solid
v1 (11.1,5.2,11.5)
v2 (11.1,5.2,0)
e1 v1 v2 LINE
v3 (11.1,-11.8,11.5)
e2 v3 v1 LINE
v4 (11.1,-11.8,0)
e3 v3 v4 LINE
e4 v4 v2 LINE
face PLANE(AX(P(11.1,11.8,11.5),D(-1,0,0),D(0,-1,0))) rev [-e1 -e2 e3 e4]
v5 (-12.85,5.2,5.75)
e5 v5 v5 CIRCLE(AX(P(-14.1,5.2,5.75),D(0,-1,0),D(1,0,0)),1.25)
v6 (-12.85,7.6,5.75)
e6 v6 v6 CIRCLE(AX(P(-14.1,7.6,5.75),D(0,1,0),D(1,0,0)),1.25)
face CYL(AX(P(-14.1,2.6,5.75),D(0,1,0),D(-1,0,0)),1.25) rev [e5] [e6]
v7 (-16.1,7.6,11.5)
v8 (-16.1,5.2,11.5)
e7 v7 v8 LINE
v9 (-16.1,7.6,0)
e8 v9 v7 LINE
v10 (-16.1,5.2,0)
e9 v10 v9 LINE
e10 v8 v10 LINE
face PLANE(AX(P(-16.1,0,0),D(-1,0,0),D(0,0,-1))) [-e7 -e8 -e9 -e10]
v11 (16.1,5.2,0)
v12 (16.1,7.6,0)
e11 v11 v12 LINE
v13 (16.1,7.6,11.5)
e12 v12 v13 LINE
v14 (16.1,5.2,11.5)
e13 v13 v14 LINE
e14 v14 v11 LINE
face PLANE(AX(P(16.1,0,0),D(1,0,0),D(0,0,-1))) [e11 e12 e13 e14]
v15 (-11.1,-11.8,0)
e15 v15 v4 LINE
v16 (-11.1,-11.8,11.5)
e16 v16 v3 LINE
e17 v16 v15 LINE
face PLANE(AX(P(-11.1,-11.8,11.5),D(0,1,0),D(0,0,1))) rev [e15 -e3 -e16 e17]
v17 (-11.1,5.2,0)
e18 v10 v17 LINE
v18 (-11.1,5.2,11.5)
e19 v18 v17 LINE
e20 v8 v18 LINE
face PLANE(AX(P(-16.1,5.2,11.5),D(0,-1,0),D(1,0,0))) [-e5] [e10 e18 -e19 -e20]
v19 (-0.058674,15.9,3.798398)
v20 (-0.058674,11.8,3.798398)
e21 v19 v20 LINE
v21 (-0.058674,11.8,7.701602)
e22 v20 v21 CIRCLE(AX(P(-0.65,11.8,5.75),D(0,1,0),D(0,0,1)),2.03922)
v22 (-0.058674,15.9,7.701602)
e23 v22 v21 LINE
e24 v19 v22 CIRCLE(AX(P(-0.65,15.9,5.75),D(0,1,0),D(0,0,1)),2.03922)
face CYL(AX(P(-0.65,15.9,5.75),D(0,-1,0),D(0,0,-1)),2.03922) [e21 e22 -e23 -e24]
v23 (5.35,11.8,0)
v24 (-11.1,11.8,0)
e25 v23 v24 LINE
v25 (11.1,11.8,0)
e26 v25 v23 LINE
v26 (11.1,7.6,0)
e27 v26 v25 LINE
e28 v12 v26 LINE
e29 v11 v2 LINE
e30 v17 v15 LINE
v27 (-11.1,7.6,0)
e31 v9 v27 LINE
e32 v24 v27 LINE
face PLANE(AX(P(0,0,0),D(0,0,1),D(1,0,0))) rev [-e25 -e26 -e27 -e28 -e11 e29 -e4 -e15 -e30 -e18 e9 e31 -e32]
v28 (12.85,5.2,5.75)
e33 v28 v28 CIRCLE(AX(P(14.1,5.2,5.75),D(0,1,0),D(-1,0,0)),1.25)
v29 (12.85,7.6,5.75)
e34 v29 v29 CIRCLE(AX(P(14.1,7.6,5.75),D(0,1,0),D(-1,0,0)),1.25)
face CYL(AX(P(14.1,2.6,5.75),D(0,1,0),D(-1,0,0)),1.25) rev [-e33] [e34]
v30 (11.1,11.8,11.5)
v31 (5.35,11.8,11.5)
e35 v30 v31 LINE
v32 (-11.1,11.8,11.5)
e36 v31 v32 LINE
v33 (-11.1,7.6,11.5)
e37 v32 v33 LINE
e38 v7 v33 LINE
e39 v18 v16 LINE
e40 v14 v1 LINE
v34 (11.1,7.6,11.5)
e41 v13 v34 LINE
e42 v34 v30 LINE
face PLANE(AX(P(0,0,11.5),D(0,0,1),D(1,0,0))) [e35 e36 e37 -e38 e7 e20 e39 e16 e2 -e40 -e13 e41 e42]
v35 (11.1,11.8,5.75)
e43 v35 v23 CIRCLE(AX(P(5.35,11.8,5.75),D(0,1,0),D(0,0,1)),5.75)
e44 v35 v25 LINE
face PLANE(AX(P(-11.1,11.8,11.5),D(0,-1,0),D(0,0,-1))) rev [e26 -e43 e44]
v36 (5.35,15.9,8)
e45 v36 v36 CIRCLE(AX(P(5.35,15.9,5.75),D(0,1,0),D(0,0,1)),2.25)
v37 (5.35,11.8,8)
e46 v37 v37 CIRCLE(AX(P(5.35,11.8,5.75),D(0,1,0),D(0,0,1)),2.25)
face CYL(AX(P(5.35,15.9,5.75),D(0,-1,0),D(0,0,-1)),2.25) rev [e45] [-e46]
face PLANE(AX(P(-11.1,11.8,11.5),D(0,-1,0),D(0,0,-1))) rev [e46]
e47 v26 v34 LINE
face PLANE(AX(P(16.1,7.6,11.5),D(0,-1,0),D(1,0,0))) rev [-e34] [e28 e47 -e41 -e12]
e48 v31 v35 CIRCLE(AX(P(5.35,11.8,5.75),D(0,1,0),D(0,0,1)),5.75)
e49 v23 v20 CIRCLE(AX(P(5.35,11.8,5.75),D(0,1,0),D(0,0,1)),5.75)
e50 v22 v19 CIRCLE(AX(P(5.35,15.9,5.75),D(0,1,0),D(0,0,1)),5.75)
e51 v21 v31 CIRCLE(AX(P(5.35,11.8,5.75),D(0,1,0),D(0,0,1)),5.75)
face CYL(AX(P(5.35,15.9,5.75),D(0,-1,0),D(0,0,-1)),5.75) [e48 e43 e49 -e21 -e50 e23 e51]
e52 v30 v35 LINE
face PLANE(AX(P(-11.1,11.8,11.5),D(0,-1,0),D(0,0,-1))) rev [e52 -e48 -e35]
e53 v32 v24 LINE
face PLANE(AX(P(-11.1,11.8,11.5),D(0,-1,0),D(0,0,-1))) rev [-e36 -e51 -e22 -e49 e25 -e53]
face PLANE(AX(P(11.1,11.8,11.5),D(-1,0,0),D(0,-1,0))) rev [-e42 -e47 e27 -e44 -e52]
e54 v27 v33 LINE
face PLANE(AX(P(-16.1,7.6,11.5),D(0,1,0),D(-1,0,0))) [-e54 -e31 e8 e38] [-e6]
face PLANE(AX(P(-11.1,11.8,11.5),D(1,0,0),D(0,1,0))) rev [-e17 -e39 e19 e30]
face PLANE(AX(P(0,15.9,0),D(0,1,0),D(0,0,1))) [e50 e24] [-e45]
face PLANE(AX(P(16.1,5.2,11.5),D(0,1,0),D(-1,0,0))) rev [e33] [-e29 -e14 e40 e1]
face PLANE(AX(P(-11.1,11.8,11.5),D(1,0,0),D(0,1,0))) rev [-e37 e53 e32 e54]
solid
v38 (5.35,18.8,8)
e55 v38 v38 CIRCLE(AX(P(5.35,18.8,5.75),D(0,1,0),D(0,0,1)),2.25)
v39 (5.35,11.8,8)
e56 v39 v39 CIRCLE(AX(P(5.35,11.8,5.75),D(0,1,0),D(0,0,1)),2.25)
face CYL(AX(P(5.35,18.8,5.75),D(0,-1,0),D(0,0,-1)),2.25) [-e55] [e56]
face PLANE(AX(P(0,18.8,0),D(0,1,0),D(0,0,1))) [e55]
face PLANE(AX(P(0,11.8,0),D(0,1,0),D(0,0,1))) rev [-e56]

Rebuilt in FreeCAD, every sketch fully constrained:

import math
import FreeCAD as App
import Part
import Sketcher
from FreeCAD import Vector
Q = App.Units.Quantity


def add_polygon(sketch, points):
    """Adds a closed chain of lines whose ends are joined by coincident constraints."""
    first, n = sketch.GeometryCount, len(points)
    for a, b in zip(points, points[1:] + points[:1]):
        sketch.addGeometry(Part.LineSegment(App.Vector(*a, 0), App.Vector(*b, 0)), False)
    for i in range(n):
        sketch.addConstraint(Sketcher.Constraint("Coincident", first + i, 2, first + (i + 1) % n, 1))

doc = App.newDocument("Part")
body = doc.addObject("PartDesign::Body", "Body")

# Sketch on XY plane
sketch1 = body.newObject("Sketcher::SketchObject", "Sketch")
sketch1.AttachmentSupport = (doc.getObject("XY_Plane"), [""])
sketch1.MapMode = "FlatFace"
add_polygon(sketch1, [(-11, 12), (-11, -12), (11, -12), (11, 12)])  # lines 0-3
sketch1.addConstraint([
    Sketcher.Constraint("Vertical", 0),
    Sketcher.Constraint("Horizontal", 1),
    Sketcher.Constraint("Vertical", 2),
    Sketcher.Constraint("Horizontal", 3),
    Sketcher.Constraint("Symmetric", 0, 2, 2, 2, -1, 1),
    Sketcher.Constraint("DistanceX", 1, 1, 1, 2, Q("22.2 mm")),
    Sketcher.Constraint("DistanceY", 0, 2, 0, 1, Q("23.6 mm")),
])
pad1 = body.newObject("PartDesign::Pad", "Pad")
pad1.Profile = sketch1
pad1.Length = 11.5

# Sketch on YZ plane
sketch2 = body.newObject("Sketcher::SketchObject", "Sketch001")
sketch2.AttachmentSupport = (doc.getObject("YZ_Plane"), [""])
sketch2.MapMode = "FlatFace"
sketch2.AttachmentOffset = App.Placement(Vector(0, 0, 11.1), App.Rotation())
add_polygon(sketch2, [(7.6, 11.5), (5.2, 11.5), (5.2, 0), (7.6, 0)])  # lines 0-3
sketch2.addConstraint([
    Sketcher.Constraint("Horizontal", 0),
    Sketcher.Constraint("Vertical", 1),
    Sketcher.Constraint("Horizontal", 2),
    Sketcher.Constraint("Vertical", 3),
    Sketcher.Constraint("PointOnObject", 1, 2, -1),
    Sketcher.Constraint("DistanceX", 0, 2, 0, 1, Q("2.4 mm")),
    Sketcher.Constraint("DistanceY", 1, 2, 1, 1, Q("11.5 mm")),
    Sketcher.Constraint("DistanceX", -1, 1, 0, 2, Q("5.2 mm")),
])
pad2 = body.newObject("PartDesign::Pad", "Pad001")
pad2.Profile = sketch2
pad2.Length = 5
doc.recompute()

mirrored = body.newObject("PartDesign::Mirrored", "Mirrored")
mirrored.Originals = [pad2]
mirrored.MirrorPlane = (doc.getObject("YZ_Plane"), [""])
body.Tip = mirrored

# Sketch on XZ plane
sketch3 = body.newObject("Sketcher::SketchObject", "Sketch002")
sketch3.AttachmentSupport = (doc.getObject("XZ_Plane"), [""])
sketch3.MapMode = "FlatFace"
sketch3.AttachmentOffset = App.Placement(Vector(0, 0, -7.6), App.Rotation())
sketch3.addGeometry([
    Part.Circle(Vector(14.1, 5.8, 0), Vector(0, 0, 1), 1.2),
    Part.Circle(Vector(-14.1, 5.8, 0), Vector(0, 0, 1), 1.2),
], False)
sketch3.addConstraint([
    Sketcher.Constraint("Equal", 0, 1),
    Sketcher.Constraint("Symmetric", 0, 3, 1, 3, -2),
    Sketcher.Constraint("Diameter", 0, Q("2.5 mm")),
    Sketcher.Constraint("DistanceX", -1, 1, 0, 3, Q("14.1 mm")),
    Sketcher.Constraint("DistanceY", -1, 1, 0, 3, Q("5.75 mm")),
])
pocket1 = body.newObject("PartDesign::Pocket", "Pocket")
pocket1.Profile = sketch3
pocket1.Length = 5
pocket1.Reversed = True

# Sketch on XZ plane
sketch4 = body.newObject("Sketcher::SketchObject", "Sketch003")
sketch4.AttachmentSupport = (doc.getObject("XZ_Plane"), [""])
sketch4.MapMode = "FlatFace"
sketch4.AttachmentOffset = App.Placement(Vector(0, 0, -11.8), App.Rotation())
sketch4.addGeometry([
    Part.ArcOfCircle(Part.Circle(Vector(5.3, 5.8, 0), Vector(0, 0, 1), 5.8), math.radians(-160), math.radians(160)),
    Part.ArcOfCircle(Part.Circle(Vector(-0.7, 5.8, 0), Vector(0, 0, 1), 2), math.radians(73), math.radians(287)),
    Part.Circle(Vector(5.3, 5.8, 0), Vector(0, 0, 1), 2.2),
], False)
sketch4.addConstraint([
    Sketcher.Constraint("Coincident", 0, 1, 1, 2),
    Sketcher.Constraint("Coincident", 1, 1, 0, 2),
    Sketcher.Constraint("Coincident", 2, 3, 0, 3),
    Sketcher.Constraint("Horizontal", 0, 3, 1, 3),
    Sketcher.Constraint("Diameter", 2, Q("4.5 mm")),
    Sketcher.Constraint("Radius", 0, Q("5.75 mm")),
    Sketcher.Constraint("DistanceX", 1, 3, 0, 3, Q("6 mm")),
    Sketcher.Constraint("DistanceX", -1, 1, 0, 3, Q("5.35 mm")),
    Sketcher.Constraint("DistanceY", -1, 1, 0, 3, Q("5.75 mm")),
    Sketcher.Constraint("Radius", 1, Q("2.03922 mm")),
])
pad3 = body.newObject("PartDesign::Pad", "Pad002")
pad3.Profile = sketch4
pad3.Length = 4.1
pad3.Reversed = True
body2 = doc.addObject("PartDesign::Body", "Body001")

# Sketch on XZ plane
sketch5 = body2.newObject("Sketcher::SketchObject", "Sketch004")
sketch5.AttachmentSupport = (doc.getObject("XZ_Plane001"), [""])
sketch5.MapMode = "FlatFace"
sketch5.AttachmentOffset = App.Placement(Vector(0, 0, -11.8), App.Rotation())
sketch5.addGeometry(Part.Circle(Vector(5.3, 5.8, 0), Vector(0, 0, 1), 2.2), False)
sketch5.addConstraint([
    Sketcher.Constraint("Diameter", 0, Q("4.5 mm")),
    Sketcher.Constraint("DistanceX", -1, 1, 0, 3, Q("5.35 mm")),
    Sketcher.Constraint("DistanceY", -1, 1, 0, 3, Q("5.75 mm")),
])
pad4 = body2.newObject("PartDesign::Pad", "Pad003")
pad4.Profile = sketch5
pad4.Length = 7
pad4.Reversed = True

doc.recompute()
